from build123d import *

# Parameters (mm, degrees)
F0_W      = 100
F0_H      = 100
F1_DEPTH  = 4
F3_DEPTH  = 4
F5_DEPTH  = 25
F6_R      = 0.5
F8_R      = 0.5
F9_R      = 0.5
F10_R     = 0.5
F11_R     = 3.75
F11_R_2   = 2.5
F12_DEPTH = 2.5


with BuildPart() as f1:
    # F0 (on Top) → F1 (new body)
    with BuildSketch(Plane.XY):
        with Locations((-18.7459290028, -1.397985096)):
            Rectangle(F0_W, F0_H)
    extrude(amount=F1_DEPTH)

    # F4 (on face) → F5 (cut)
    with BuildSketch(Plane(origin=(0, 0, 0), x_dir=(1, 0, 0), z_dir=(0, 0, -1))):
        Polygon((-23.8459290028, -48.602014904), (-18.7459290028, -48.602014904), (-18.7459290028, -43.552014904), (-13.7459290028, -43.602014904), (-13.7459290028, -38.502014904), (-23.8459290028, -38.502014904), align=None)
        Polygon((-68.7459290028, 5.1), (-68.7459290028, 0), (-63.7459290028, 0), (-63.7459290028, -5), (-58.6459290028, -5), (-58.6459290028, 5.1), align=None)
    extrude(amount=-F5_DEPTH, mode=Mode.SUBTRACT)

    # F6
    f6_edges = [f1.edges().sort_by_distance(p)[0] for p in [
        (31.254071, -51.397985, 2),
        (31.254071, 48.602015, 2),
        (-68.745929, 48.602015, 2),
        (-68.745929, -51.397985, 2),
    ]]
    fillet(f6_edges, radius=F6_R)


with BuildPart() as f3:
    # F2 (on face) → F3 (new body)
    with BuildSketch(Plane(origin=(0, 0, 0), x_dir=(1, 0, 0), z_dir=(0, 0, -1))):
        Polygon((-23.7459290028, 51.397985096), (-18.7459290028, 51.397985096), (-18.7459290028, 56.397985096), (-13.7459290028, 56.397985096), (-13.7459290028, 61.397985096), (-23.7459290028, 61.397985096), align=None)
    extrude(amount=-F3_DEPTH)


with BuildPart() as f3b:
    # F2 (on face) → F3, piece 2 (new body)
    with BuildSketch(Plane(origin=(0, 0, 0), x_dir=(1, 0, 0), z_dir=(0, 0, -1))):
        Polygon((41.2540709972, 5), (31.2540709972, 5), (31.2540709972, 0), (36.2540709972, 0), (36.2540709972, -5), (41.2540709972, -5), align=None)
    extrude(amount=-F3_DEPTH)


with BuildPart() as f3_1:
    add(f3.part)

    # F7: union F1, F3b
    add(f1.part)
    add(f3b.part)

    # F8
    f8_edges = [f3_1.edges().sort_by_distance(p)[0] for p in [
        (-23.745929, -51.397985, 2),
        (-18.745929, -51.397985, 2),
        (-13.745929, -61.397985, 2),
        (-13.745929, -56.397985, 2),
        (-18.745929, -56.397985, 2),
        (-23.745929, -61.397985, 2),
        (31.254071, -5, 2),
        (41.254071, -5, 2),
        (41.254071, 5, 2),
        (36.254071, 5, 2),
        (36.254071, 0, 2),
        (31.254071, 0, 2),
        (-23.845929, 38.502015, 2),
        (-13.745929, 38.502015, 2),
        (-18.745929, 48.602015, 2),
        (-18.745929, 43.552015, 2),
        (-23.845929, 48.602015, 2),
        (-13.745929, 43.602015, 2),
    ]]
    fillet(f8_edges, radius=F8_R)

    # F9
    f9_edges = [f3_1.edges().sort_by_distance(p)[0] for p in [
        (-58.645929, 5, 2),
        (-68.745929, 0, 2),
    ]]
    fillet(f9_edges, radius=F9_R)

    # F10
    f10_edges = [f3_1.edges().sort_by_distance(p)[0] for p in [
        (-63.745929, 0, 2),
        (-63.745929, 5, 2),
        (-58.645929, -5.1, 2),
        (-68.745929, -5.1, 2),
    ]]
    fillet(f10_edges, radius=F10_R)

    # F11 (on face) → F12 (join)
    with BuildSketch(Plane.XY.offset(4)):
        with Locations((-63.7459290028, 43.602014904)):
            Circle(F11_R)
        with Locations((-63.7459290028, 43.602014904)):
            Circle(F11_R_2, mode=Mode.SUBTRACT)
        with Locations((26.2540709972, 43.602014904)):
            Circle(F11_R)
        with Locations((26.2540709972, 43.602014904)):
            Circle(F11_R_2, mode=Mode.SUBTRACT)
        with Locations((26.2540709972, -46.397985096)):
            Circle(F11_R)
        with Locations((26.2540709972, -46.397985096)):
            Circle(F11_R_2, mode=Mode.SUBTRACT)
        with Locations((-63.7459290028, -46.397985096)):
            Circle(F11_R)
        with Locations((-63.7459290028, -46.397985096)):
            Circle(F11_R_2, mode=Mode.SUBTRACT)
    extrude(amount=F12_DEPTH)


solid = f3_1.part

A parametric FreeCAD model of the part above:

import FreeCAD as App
import Part
import Sketcher
from FreeCAD import Vector


def edges_at(feature, points):
    """Names of the edges that pass closest to the given points."""
    edges = feature.Shape.Edges
    near = lambda p: min(range(len(edges)), key=lambda i: edges[i].distToShape(Part.Vertex(*p))[0])
    return sorted({f"Edge{near(p) + 1}" for p in points})

doc = App.newDocument("Part")
body = doc.addObject("PartDesign::Body", "Body")

sketch1 = doc.addObject("Sketcher::SketchObject", "Sketch")
body.addObject(sketch1)
sketch1.AttachmentSupport = (doc.XY_Plane, [""])
sketch1.MapMode = "FlatFace"
sketch1.addGeometry([
    Part.LineSegment(Vector(-68.745929, 48.602015, 0), Vector(-68.745929, -51.397985, 0)),
    Part.LineSegment(Vector(-68.745929, -51.397985, 0), Vector(31.254071, -51.397985, 0)),
    Part.LineSegment(Vector(31.254071, -51.397985, 0), Vector(31.254071, 48.602015, 0)),
    Part.LineSegment(Vector(31.254071, 48.602015, 0), Vector(-68.745929, 48.602015, 0)),
], False)
sketch1.addConstraint([
    Sketcher.Constraint("Coincident", 0, 2, 1, 1),
    Sketcher.Constraint("Coincident", 1, 2, 2, 1),
    Sketcher.Constraint("Coincident", 2, 2, 3, 1),
    Sketcher.Constraint("Coincident", 3, 2, 0, 1),
    Sketcher.Constraint("Vertical", 0),
    Sketcher.Constraint("Horizontal", 1),
    Sketcher.Constraint("Vertical", 2),
    Sketcher.Constraint("Horizontal", 3),
    Sketcher.Constraint("Equal", 3, 0),
    Sketcher.Constraint("DistanceX", 1, 1, 1, 2, 100.0),
    Sketcher.Constraint("DistanceX", 0, 2, -1, 1, 68.745929),
    Sketcher.Constraint("DistanceY", 0, 2, -1, 1, 51.397985),
])
pad1 = doc.addObject("PartDesign::Pad", "Pad")
body.addObject(pad1)
pad1.Profile = sketch1
pad1.Length = 4

sketch2 = doc.addObject("Sketcher::SketchObject", "Sketch001")
body.addObject(sketch2)
sketch2.AttachmentSupport = (doc.XY_Plane, [""])
sketch2.MapMode = "FlatFace"
sketch2.addGeometry([
    Part.LineSegment(Vector(-23.845929, 48.602015, 0), Vector(-18.745929, 48.602015, 0)),
    Part.LineSegment(Vector(-18.745929, 48.602015, 0), Vector(-18.745929, 43.552015, 0)),
    Part.LineSegment(Vector(-18.745929, 43.552015, 0), Vector(-13.745929, 43.602015, 0)),
    Part.LineSegment(Vector(-13.745929, 43.602015, 0), Vector(-13.745929, 38.502015, 0)),
    Part.LineSegment(Vector(-13.745929, 38.502015, 0), Vector(-23.845929, 38.502015, 0)),
    Part.LineSegment(Vector(-23.845929, 38.502015, 0), Vector(-23.845929, 48.602015, 0)),
    Part.LineSegment(Vector(-68.745929, -5.1, 0), Vector(-68.745929, 0, 0)),
    Part.LineSegment(Vector(-68.745929, 0, 0), Vector(-63.745929, 0, 0)),
    Part.LineSegment(Vector(-63.745929, 0, 0), Vector(-63.745929, 5, 0)),
    Part.LineSegment(Vector(-63.745929, 5, 0), Vector(-58.645929, 5, 0)),
    Part.LineSegment(Vector(-58.645929, 5, 0), Vector(-58.645929, -5.1, 0)),
    Part.LineSegment(Vector(-58.645929, -5.1, 0), Vector(-68.745929, -5.1, 0)),
], False)
sketch2.addConstraint([
    Sketcher.Constraint("Coincident", 0, 2, 1, 1),
    Sketcher.Constraint("Coincident", 1, 2, 2, 1),
    Sketcher.Constraint("Coincident", 2, 2, 3, 1),
    Sketcher.Constraint("Coincident", 3, 2, 4, 1),
    Sketcher.Constraint("Coincident", 4, 2, 5, 1),
    Sketcher.Constraint("Coincident", 5, 2, 0, 1),
    Sketcher.Constraint("Coincident", 6, 2, 7, 1),
    Sketcher.Constraint("Coincident", 7, 2, 8, 1),
    Sketcher.Constraint("Coincident", 8, 2, 9, 1),
    Sketcher.Constraint("Coincident", 9, 2, 10, 1),
    Sketcher.Constraint("Coincident", 10, 2, 11, 1),
    Sketcher.Constraint("Coincident", 11, 2, 6, 1),
    Sketcher.Constraint("Horizontal", 0),
    Sketcher.Constraint("Vertical", 1),
    Sketcher.Constraint("Vertical", 3),
    Sketcher.Constraint("Horizontal", 4),
    Sketcher.Constraint("Vertical", 5),
    Sketcher.Constraint("Vertical", 6),
    Sketcher.Constraint("Horizontal", 7),
    Sketcher.Constraint("Vertical", 8),
    Sketcher.Constraint("Horizontal", 9),
    Sketcher.Constraint("Vertical", 10),
    Sketcher.Constraint("Horizontal", 11),
    Sketcher.Constraint("PointOnObject", 6, 2, -1),
    Sketcher.Constraint("Equal", 0, 9),
    Sketcher.Constraint("Equal", 4, 11),
    Sketcher.Constraint("Equal", 9, 3),
    Sketcher.Constraint("Equal", 11, 5),
    Sketcher.Constraint("Equal", 3, 6),
    Sketcher.Constraint("Equal", 7, 8),
    Sketcher.Constraint("DistanceX", 7, 1, 7, 2, 5.0),
    Sketcher.Constraint("DistanceX", 0, 1, 0, 2, 5.1),
    Sketcher.Constraint("DistanceX", 6, 2, 1, 2, 50.0),
    Sketcher.Constraint("DistanceY", 1, 2, 1, 1, 5.05),
    Sketcher.Constraint("DistanceX", 0, 2, -1, 1, 18.745929),
    Sketcher.Constraint("DistanceY", -1, 1, 0, 2, 48.602015),
])
pocket1 = doc.addObject("PartDesign::Pocket", "Pocket")
body.addObject(pocket1)
pocket1.Profile = sketch2
pocket1.Length = 25
pocket1.Reversed = True
doc.recompute()

fillet = doc.addObject("PartDesign::Fillet", "Fillet")
body.addObject(fillet)
fillet.Base = (pocket1, edges_at(pocket1, [
    (31.254, -51.398, 2),
    (31.254, 48.602, 2),
    (-68.746, 48.602, 2),
    (-68.746, -51.398, 2),
]))
fillet.Radius = 0.5
body2 = doc.addObject("PartDesign::Body", "Body001")

sketch3 = doc.addObject("Sketcher::SketchObject", "Sketch002")
body2.addObject(sketch3)
sketch3.AttachmentSupport = (doc.getObject("XY_Plane001"), [""])
sketch3.MapMode = "FlatFace"
sketch3.addGeometry([
    Part.LineSegment(Vector(-23.745929, -51.397985, 0), Vector(-18.745929, -51.397985, 0)),
    Part.LineSegment(Vector(-18.745929, -51.397985, 0), Vector(-18.745929, -56.397985, 0)),
    Part.LineSegment(Vector(-18.745929, -56.397985, 0), Vector(-13.745929, -56.397985, 0)),
    Part.LineSegment(Vector(-13.745929, -56.397985, 0), Vector(-13.745929, -61.397985, 0)),
    Part.LineSegment(Vector(-13.745929, -61.397985, 0), Vector(-23.745929, -61.397985, 0)),
    Part.LineSegment(Vector(-23.745929, -61.397985, 0), Vector(-23.745929, -51.397985, 0)),
], False)
sketch3.addConstraint([
    Sketcher.Constraint("Coincident", 0, 2, 1, 1),
    Sketcher.Constraint("Coincident", 1, 2, 2, 1),
    Sketcher.Constraint("Coincident", 2, 2, 3, 1),
    Sketcher.Constraint("Coincident", 3, 2, 4, 1),
    Sketcher.Constraint("Coincident", 4, 2, 5, 1),
    Sketcher.Constraint("Coincident", 5, 2, 0, 1),
    Sketcher.Constraint("Horizontal", 0),
    Sketcher.Constraint("Vertical", 1),
    Sketcher.Constraint("Horizontal", 2),
    Sketcher.Constraint("Vertical", 3),
    Sketcher.Constraint("Horizontal", 4),
    Sketcher.Constraint("Vertical", 5),
    Sketcher.Constraint("Equal", 0, 2),
    Sketcher.Constraint("Equal", 2, 1),
    Sketcher.Constraint("Equal", 1, 3),
    Sketcher.Constraint("DistanceX", 0, 1, 0, 2, 5.0),
    Sketcher.Constraint("DistanceX", 0, 2, -1, 1, 18.745929),
    Sketcher.Constraint("DistanceY", 0, 2, -1, 1, 51.397985),
])
pad2 = doc.addObject("PartDesign::Pad", "Pad001")
body2.addObject(pad2)
pad2.Profile = sketch3
pad2.Length = 4
body3 = doc.addObject("PartDesign::Body", "Body002")

sketch4 = doc.addObject("Sketcher::SketchObject", "Sketch003")
body3.addObject(sketch4)
sketch4.AttachmentSupport = (doc.getObject("XY_Plane002"), [""])
sketch4.MapMode = "FlatFace"
sketch4.addGeometry([
    Part.LineSegment(Vector(41.254071, -5, 0), Vector(31.254071, -5, 0)),
    Part.LineSegment(Vector(31.254071, -5, 0), Vector(31.254071, 0, 0)),
    Part.LineSegment(Vector(31.254071, 0, 0), Vector(36.254071, 0, 0)),
    Part.LineSegment(Vector(36.254071, 0, 0), Vector(36.254071, 5, 0)),
    Part.LineSegment(Vector(36.254071, 5, 0), Vector(41.254071, 5, 0)),
    Part.LineSegment(Vector(41.254071, 5, 0), Vector(41.254071, -5, 0)),
], False)
sketch4.addConstraint([
    Sketcher.Constraint("Coincident", 0, 2, 1, 1),
    Sketcher.Constraint("Coincident", 1, 2, 2, 1),
    Sketcher.Constraint("Coincident", 2, 2, 3, 1),
    Sketcher.Constraint("Coincident", 3, 2, 4, 1),
    Sketcher.Constraint("Coincident", 4, 2, 5, 1),
    Sketcher.Constraint("Coincident", 5, 2, 0, 1),
    Sketcher.Constraint("Horizontal", 0),
    Sketcher.Constraint("Vertical", 1),
    Sketcher.Constraint("Horizontal", 2),
    Sketcher.Constraint("Vertical", 3),
    Sketcher.Constraint("Horizontal", 4),
    Sketcher.Constraint("Vertical", 5),
    Sketcher.Constraint("PointOnObject", 1, 2, -1),
    Sketcher.Constraint("Equal", 2, 4),
    Sketcher.Constraint("Equal", 4, 1),
    Sketcher.Constraint("Equal", 1, 3),
    Sketcher.Constraint("DistanceX", 0, 2, 0, 1, 10.0),
    Sketcher.Constraint("DistanceX", -1, 1, 0, 2, 31.254071),
])
pad3 = doc.addObject("PartDesign::Pad", "Pad002")
body3.addObject(pad3)
pad3.Profile = sketch4
pad3.Length = 4
doc.recompute()

boolean = doc.addObject("PartDesign::Boolean", "Boolean")
body2.addObject(boolean)
boolean.Type = "Fuse"
boolean.addObjects([body])
doc.recompute()

boolean2 = doc.addObject("PartDesign::Boolean", "Boolean001")
body2.addObject(boolean2)
boolean2.Type = "Fuse"
boolean2.addObjects([body3])
doc.recompute()

fillet2 = doc.addObject("PartDesign::Fillet", "Fillet001")
body2.addObject(fillet2)
fillet2.Base = (boolean2, edges_at(boolean2, [
    (-23.746, -51.398, 2),
    (-18.746, -51.398, 2),
    (-13.746, -61.398, 2),
    (-13.746, -56.398, 2),
    (-18.746, -56.398, 2),
    (-23.746, -61.398, 2),
    (31.254, -5, 2),
    (41.254, -5, 2),
    (41.254, 5, 2),
    (36.254, 5, 2),
    (36.254, 0, 2),
    (31.254, 0, 2),
    (-23.846, 38.502, 2),
    (-13.746, 38.502, 2),
    (-18.746, 48.602, 2),
    (-18.746, 43.552, 2),
    (-23.846, 48.602, 2),
    (-13.746, 43.602, 2),
]))
fillet2.Radius = 0.5
doc.recompute()

fillet3 = doc.addObject("PartDesign::Fillet", "Fillet002")
body2.addObject(fillet3)
fillet3.Base = (fillet2, edges_at(fillet2, [(-58.646, 5, 2), (-68.746, 0, 2)]))
fillet3.Radius = 0.5
doc.recompute()

fillet4 = doc.addObject("PartDesign::Fillet", "Fillet003")
body2.addObject(fillet4)
fillet4.Base = (fillet3, edges_at(fillet3, [
    (-63.746, 0, 2),
    (-63.746, 5, 2),
    (-58.646, -5.1, 2),
    (-68.746, -5.1, 2),
]))
fillet4.Radius = 0.5

sketch5 = doc.addObject("Sketcher::SketchObject", "Sketch004")
body2.addObject(sketch5)
sketch5.AttachmentSupport = (doc.getObject("XY_Plane001"), [""])
sketch5.MapMode = "FlatFace"
sketch5.AttachmentOffset = App.Placement(Vector(0, 0, 4), App.Rotation())
sketch5.addGeometry([
    Part.Circle(Vector(-63.745929, 43.602015, 0), Vector(0, 0, 1), 3.75),
    Part.Circle(Vector(-63.745929, 43.602015, 0), Vector(0, 0, 1), 2.5),
    Part.Circle(Vector(26.254071, 43.602015, 0), Vector(0, 0, 1), 3.75),
    Part.Circle(Vector(26.254071, 43.602015, 0), Vector(0, 0, 1), 2.5),
    Part.Circle(Vector(26.254071, -46.397985, 0), Vector(0, 0, 1), 3.75),
    Part.Circle(Vector(26.254071, -46.397985, 0), Vector(0, 0, 1), 2.5),
    Part.Circle(Vector(-63.745929, -46.397985, 0), Vector(0, 0, 1), 3.75),
    Part.Circle(Vector(-63.745929, -46.397985, 0), Vector(0, 0, 1), 2.5),
], False)
sketch5.addConstraint([
    Sketcher.Constraint("Coincident", 1, 3, 0, 3),
    Sketcher.Constraint("Coincident", 3, 3, 2, 3),
    Sketcher.Constraint("Coincident", 5, 3, 4, 3),
    Sketcher.Constraint("Coincident", 7, 3, 6, 3),
    Sketcher.Constraint("Equal", 0, 2),
    Sketcher.Constraint("Equal", 1, 3),
    Sketcher.Constraint("Equal", 2, 4),
    Sketcher.Constraint("Equal", 3, 5),
    Sketcher.Constraint("Equal", 4, 6),
    Sketcher.Constraint("Equal", 5, 7),
    Sketcher.Constraint("Horizontal", 1, 3, 2, 3),
    Sketcher.Constraint("Horizontal", 5, 3, 6, 3),
    Sketcher.Constraint("Vertical", 3, 3, 4, 3),
    Sketcher.Constraint("Vertical", 1, 3, 6, 3),
    Sketcher.Constraint("Diameter", 1, 5.0),
    Sketcher.Constraint("Diameter", 0, 7.5),
    Sketcher.Constraint("DistanceX", 0, 3, 2, 3, 90.0),
    Sketcher.Constraint("DistanceY", 4, 3, 2, 3, 90.0),
    Sketcher.Constraint("DistanceX", 0, 3, -1, 1, 63.745929),
    Sketcher.Constraint("DistanceY", -1, 1, 0, 3, 43.602015),
])
pad4 = doc.addObject("PartDesign::Pad", "Pad003")
body2.addObject(pad4)
pad4.Profile = sketch5
pad4.Length = 2.5

doc.recompute()
